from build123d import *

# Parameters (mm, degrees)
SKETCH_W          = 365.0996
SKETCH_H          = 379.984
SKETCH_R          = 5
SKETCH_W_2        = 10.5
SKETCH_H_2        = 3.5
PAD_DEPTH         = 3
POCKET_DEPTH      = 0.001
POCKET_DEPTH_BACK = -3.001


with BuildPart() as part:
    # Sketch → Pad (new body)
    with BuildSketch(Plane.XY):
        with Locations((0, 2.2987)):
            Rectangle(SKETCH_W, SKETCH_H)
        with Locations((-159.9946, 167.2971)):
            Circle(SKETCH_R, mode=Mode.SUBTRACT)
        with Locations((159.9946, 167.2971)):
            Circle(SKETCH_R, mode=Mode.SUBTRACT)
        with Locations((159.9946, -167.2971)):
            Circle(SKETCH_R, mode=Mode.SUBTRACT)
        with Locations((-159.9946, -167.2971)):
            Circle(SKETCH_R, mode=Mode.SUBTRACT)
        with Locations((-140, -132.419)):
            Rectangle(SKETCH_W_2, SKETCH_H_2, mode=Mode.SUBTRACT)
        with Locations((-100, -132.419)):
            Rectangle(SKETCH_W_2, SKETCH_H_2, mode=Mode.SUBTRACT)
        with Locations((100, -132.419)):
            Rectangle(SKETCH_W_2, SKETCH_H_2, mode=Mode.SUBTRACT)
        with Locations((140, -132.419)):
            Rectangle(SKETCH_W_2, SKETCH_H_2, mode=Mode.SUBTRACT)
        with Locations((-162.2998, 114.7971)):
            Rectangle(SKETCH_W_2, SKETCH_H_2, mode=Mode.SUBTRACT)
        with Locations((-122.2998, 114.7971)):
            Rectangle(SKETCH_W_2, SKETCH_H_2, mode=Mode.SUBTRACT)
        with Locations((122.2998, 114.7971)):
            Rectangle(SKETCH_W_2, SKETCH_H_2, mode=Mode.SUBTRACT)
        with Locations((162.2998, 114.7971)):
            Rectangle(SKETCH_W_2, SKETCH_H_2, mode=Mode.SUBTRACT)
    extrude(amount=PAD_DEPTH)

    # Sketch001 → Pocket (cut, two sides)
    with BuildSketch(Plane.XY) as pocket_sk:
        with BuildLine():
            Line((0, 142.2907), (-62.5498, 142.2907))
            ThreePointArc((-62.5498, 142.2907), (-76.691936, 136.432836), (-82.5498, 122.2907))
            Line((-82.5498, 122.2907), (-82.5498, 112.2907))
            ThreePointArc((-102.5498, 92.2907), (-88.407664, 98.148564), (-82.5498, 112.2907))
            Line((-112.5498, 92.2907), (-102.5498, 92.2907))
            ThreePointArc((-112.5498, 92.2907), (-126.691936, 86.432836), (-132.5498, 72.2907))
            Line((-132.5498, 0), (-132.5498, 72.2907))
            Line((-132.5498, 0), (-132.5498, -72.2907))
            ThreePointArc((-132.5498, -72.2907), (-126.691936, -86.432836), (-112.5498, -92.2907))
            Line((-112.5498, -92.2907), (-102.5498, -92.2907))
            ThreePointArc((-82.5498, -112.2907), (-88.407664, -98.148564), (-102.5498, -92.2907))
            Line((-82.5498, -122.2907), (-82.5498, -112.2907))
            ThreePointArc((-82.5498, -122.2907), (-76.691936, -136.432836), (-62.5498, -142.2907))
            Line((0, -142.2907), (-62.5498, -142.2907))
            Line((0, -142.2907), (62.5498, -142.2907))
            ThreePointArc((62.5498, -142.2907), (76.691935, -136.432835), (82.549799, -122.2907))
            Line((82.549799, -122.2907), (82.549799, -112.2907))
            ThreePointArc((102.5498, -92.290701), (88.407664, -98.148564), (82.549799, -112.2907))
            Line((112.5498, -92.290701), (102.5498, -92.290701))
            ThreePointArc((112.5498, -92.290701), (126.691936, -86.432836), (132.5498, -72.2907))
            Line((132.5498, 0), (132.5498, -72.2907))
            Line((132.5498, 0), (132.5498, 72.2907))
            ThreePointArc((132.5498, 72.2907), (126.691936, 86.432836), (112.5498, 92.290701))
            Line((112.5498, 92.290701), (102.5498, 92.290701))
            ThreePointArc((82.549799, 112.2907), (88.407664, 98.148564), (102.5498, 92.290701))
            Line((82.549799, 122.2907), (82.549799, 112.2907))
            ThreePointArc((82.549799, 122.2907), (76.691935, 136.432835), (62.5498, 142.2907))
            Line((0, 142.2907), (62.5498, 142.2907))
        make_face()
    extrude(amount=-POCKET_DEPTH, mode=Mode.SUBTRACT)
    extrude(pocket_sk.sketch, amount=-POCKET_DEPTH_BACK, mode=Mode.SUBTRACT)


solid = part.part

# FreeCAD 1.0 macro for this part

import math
import FreeCAD as App
import Part
import Sketcher
from FreeCAD import Vector

doc = App.newDocument("Part")
body = doc.addObject("PartDesign::Body", "Body")

sketch1 = body.newObject("Sketcher::SketchObject", "Sketch")
sketch1.AttachmentSupport = (doc.getObject("XY_Plane"), [""])
sketch1.MapMode = "FlatFace"
sketch1.addGeometry([
    Part.LineSegment(Vector(-182.5, 192.3, 0), Vector(-182.5, -187.7, 0)),
    Part.LineSegment(Vector(-182.5, -187.7, 0), Vector(182.5, -187.7, 0)),
    Part.LineSegment(Vector(182.5, -187.7, 0), Vector(182.5, 192.3, 0)),
    Part.LineSegment(Vector(182.5, 192.3, 0), Vector(-182.5, 192.3, 0)),
    Part.Circle(Vector(-160, -167.3, 0), Vector(0, 0, 1), 5),
    Part.LineSegment(Vector(-134.8, -134.2, 0), Vector(-145.2, -134.2, 0)),
    Part.LineSegment(Vector(-145.2, -134.2, 0), Vector(-145.2, -130.7, 0)),
    Part.LineSegment(Vector(-145.2, -130.7, 0), Vector(-134.8, -130.7, 0)),
    Part.LineSegment(Vector(-134.8, -130.7, 0), Vector(-134.8, -134.2, 0)),
    Part.LineSegment(Vector(-94.8, -134.2, 0), Vector(-105.2, -134.2, 0)),
    Part.LineSegment(Vector(-105.2, -134.2, 0), Vector(-105.2, -130.7, 0)),
    Part.LineSegment(Vector(-105.2, -130.7, 0), Vector(-94.8, -130.7, 0)),
    Part.LineSegment(Vector(-94.8, -130.7, 0), Vector(-94.8, -134.2, 0)),
    Part.LineSegment(Vector(105.2, -134.2, 0), Vector(94.8, -134.2, 0)),
    Part.LineSegment(Vector(94.8, -134.2, 0), Vector(94.8, -130.7, 0)),
    Part.LineSegment(Vector(94.8, -130.7, 0), Vector(105.2, -130.7, 0)),
    Part.LineSegment(Vector(105.2, -130.7, 0), Vector(105.2, -134.2, 0)),
    Part.Circle(Vector(160, -167.3, 0), Vector(0, 0, 1), 5),
    Part.LineSegment(Vector(145.2, -134.2, 0), Vector(134.8, -134.2, 0)),
    Part.LineSegment(Vector(134.8, -134.2, 0), Vector(134.8, -130.7, 0)),
    Part.LineSegment(Vector(134.8, -130.7, 0), Vector(145.2, -130.7, 0)),
    Part.LineSegment(Vector(145.2, -130.7, 0), Vector(145.2, -134.2, 0)),
    Part.LineSegment(Vector(-157, 113, 0), Vector(-167.5, 113, 0)),
    Part.LineSegment(Vector(-167.5, 113, 0), Vector(-167.5, 116.5, 0)),
    Part.LineSegment(Vector(-167.5, 116.5, 0), Vector(-157, 116.5, 0)),
    Part.LineSegment(Vector(-157, 116.5, 0), Vector(-157, 113, 0)),
    Part.LineSegment(Vector(-117, 113, 0), Vector(-127.5, 113, 0)),
    Part.LineSegment(Vector(-127.5, 113, 0), Vector(-127.5, 116.5, 0)),
    Part.LineSegment(Vector(-127.5, 116.5, 0), Vector(-117, 116.5, 0)),
    Part.LineSegment(Vector(-117, 116.5, 0), Vector(-117, 113, 0)),
    Part.Circle(Vector(-160, 167.3, 0), Vector(0, 0, 1), 5),
    Part.LineSegment(Vector(127.5, 113, 0), Vector(117, 113, 0)),
    Part.LineSegment(Vector(117, 113, 0), Vector(117, 116.5, 0)),
    Part.LineSegment(Vector(117, 116.5, 0), Vector(127.5, 116.5, 0)),
    Part.LineSegment(Vector(127.5, 116.5, 0), Vector(127.5, 113, 0)),
    Part.LineSegment(Vector(167.5, 113, 0), Vector(157, 113, 0)),
    Part.LineSegment(Vector(157, 113, 0), Vector(157, 116.5, 0)),
    Part.LineSegment(Vector(157, 116.5, 0), Vector(167.5, 116.5, 0)),
    Part.LineSegment(Vector(167.5, 116.5, 0), Vector(167.5, 113, 0)),
    Part.Circle(Vector(160, 167.3, 0), Vector(0, 0, 1), 5),
], False)
sketch1.addConstraint([
    Sketcher.Constraint("Coincident", 0, 2, 1, 1),
    Sketcher.Constraint("Coincident", 1, 2, 2, 1),
    Sketcher.Constraint("Coincident", 2, 2, 3, 1),
    Sketcher.Constraint("Coincident", 3, 2, 0, 1),
    Sketcher.Constraint("Coincident", 5, 2, 6, 1),
    Sketcher.Constraint("Coincident", 6, 2, 7, 1),
    Sketcher.Constraint("Coincident", 7, 2, 8, 1),
    Sketcher.Constraint("Coincident", 8, 2, 5, 1),
    Sketcher.Constraint("Coincident", 9, 2, 10, 1),
    Sketcher.Constraint("Coincident", 10, 2, 11, 1),
    Sketcher.Constraint("Coincident", 11, 2, 12, 1),
    Sketcher.Constraint("Coincident", 12, 2, 9, 1),
    Sketcher.Constraint("Coincident", 13, 2, 14, 1),
    Sketcher.Constraint("Coincident", 14, 2, 15, 1),
    Sketcher.Constraint("Coincident", 15, 2, 16, 1),
    Sketcher.Constraint("Coincident", 16, 2, 13, 1),
    Sketcher.Constraint("Coincident", 18, 2, 19, 1),
    Sketcher.Constraint("Coincident", 19, 2, 20, 1),
    Sketcher.Constraint("Coincident", 20, 2, 21, 1),
    Sketcher.Constraint("Coincident", 21, 2, 18, 1),
    Sketcher.Constraint("Coincident", 22, 2, 23, 1),
    Sketcher.Constraint("Coincident", 23, 2, 24, 1),
    Sketcher.Constraint("Coincident", 24, 2, 25, 1),
    Sketcher.Constraint("Coincident", 25, 2, 22, 1),
    Sketcher.Constraint("Coincident", 26, 2, 27, 1),
    Sketcher.Constraint("Coincident", 27, 2, 28, 1),
    Sketcher.Constraint("Coincident", 28, 2, 29, 1),
    Sketcher.Constraint("Coincident", 29, 2, 26, 1),
    Sketcher.Constraint("Coincident", 31, 2, 32, 1),
    Sketcher.Constraint("Coincident", 32, 2, 33, 1),
    Sketcher.Constraint("Coincident", 33, 2, 34, 1),
    Sketcher.Constraint("Coincident", 34, 2, 31, 1),
    Sketcher.Constraint("Coincident", 35, 2, 36, 1),
    Sketcher.Constraint("Coincident", 36, 2, 37, 1),
    Sketcher.Constraint("Coincident", 37, 2, 38, 1),
    Sketcher.Constraint("Coincident", 38, 2, 35, 1),
    Sketcher.Constraint("Vertical", 0),
    Sketcher.Constraint("Horizontal", 1),
    Sketcher.Constraint("Vertical", 2),
    Sketcher.Constraint("Horizontal", 3),
    Sketcher.Constraint("Horizontal", 5),
    Sketcher.Constraint("Vertical", 6),
    Sketcher.Constraint("Horizontal", 7),
    Sketcher.Constraint("Vertical", 8),
    Sketcher.Constraint("Horizontal", 9),
    Sketcher.Constraint("Vertical", 10),
    Sketcher.Constraint("Horizontal", 11),
    Sketcher.Constraint("Vertical", 12),
    Sketcher.Constraint("Horizontal", 13),
    Sketcher.Constraint("Vertical", 14),
    Sketcher.Constraint("Horizontal", 15),
    Sketcher.Constraint("Vertical", 16),
    Sketcher.Constraint("Horizontal", 18),
    Sketcher.Constraint("Vertical", 19),
    Sketcher.Constraint("Horizontal", 20),
    Sketcher.Constraint("Vertical", 21),
    Sketcher.Constraint("Horizontal", 22),
    Sketcher.Constraint("Vertical", 23),
    Sketcher.Constraint("Horizontal", 24),
    Sketcher.Constraint("Vertical", 25),
    Sketcher.Constraint("Horizontal", 26),
    Sketcher.Constraint("Vertical", 27),
    Sketcher.Constraint("Horizontal", 28),
    Sketcher.Constraint("Vertical", 29),
    Sketcher.Constraint("Horizontal", 31),
    Sketcher.Constraint("Vertical", 32),
    Sketcher.Constraint("Horizontal", 33),
    Sketcher.Constraint("Vertical", 34),
    Sketcher.Constraint("Horizontal", 35),
    Sketcher.Constraint("Vertical", 36),
    Sketcher.Constraint("Horizontal", 37),
    Sketcher.Constraint("Vertical", 38),
    Sketcher.Constraint("Equal", 4, 17),
    Sketcher.Constraint("Equal", 17, 30),
    Sketcher.Constraint("Equal", 30, 39),
    Sketcher.Constraint("Symmetric", 17, 3, 30, 3, -1, 1),
    Sketcher.Constraint("Symmetric", 4, 3, 39, 3, -1, 1),
    Sketcher.Constraint("Symmetric", 4, 3, 17, 3, -2),
    Sketcher.Constraint("Symmetric", 12, 2, 13, 2, -2),
    Sketcher.Constraint("Symmetric", 10, 2, 15, 2, -2),
    Sketcher.Constraint("Symmetric", 8, 2, 18, 2, -2),
    Sketcher.Constraint("Symmetric", 6, 2, 20, 2, -2),
    Sketcher.Constraint("Symmetric", 29, 2, 31, 2, -2),
    Sketcher.Constraint("Symmetric", 27, 2, 33, 2, -2),
    Sketcher.Constraint("Symmetric", 25, 2, 35, 2, -2),
    Sketcher.Constraint("Symmetric", 23, 2, 37, 2, -2),
    Sketcher.Constraint("Horizontal", 8, 2, 9, 2),
    Sketcher.Constraint("Horizontal", 7, 2, 10, 2),
    Sketcher.Constraint("Horizontal", 25, 2, 26, 2),
    Sketcher.Constraint("Horizontal", 24, 2, 27, 2),
    Sketcher.Constraint("Equal", 7, 9),
    Sketcher.Constraint("Equal", 20, 22),
    Sketcher.Constraint("Equal", 24, 26),
    Sketcher.Constraint("Equal", 21, 23),
    Sketcher.Constraint("Diameter", 4, 10.0),
    Sketcher.Constraint("DistanceX", 5, 2, 5, 1, 10.5),
    Sketcher.Constraint("DistanceY", 6, 1, 6, 2, 3.5),
    Sketcher.Constraint("DistanceX", 5, 2, 9, 2, 40.0),
    Sketcher.Constraint("DistanceX", 9, 2, 13, 2, 200.0),
    Sketcher.Constraint("DistanceX", 3, 2, 22, 2, 15.0),
    Sketcher.Constraint("DistanceX", 22, 2, 26, 2, 40.0),
    Sketcher.Constraint("DistanceX", 33, 2, 2, 2, 55.0),
    Sketcher.Constraint("DistanceY", 0, 2, 0, 1, 379.984),
    Sketcher.Constraint("DistanceY", 22, 2, 30, 3, 54.25),
    Sketcher.Constraint("DistanceX", 1, 1, 1, 2, 365.0996),
    Sketcher.Constraint("DistanceY", 5, 2, -1, 1, 134.169),
    Sketcher.Constraint("DistanceX", 4, 3, -1, 1, 159.9946),
    Sketcher.Constraint("DistanceY", 4, 3, -1, 1, 167.2971),
    Sketcher.Constraint("DistanceY", 0, 2, -1, 1, 187.6933),
])
pad1 = body.newObject("PartDesign::Pad", "Pad")
pad1.Profile = sketch1
pad1.Length = 3

sketch2 = body.newObject("Sketcher::SketchObject", "Sketch001")
sketch2.AttachmentSupport = (doc.getObject("XY_Plane"), [""])
sketch2.MapMode = "FlatFace"
sketch2.addGeometry([
    Part.ArcOfCircle(Part.Circle(Vector(-63, 122, 0), Vector(0, 0, 1), 20), math.radians(90), math.radians(180)),
    Part.LineSegment(Vector(-83, 122, 0), Vector(-83, 112, 0)),
    Part.ArcOfCircle(Part.Circle(Vector(-103, 112, 0), Vector(0, 0, 1), 20), math.radians(-90), math.radians(0)),
    Part.LineSegment(Vector(-103, 92, 0), Vector(-113, 92, 0)),
    Part.ArcOfCircle(Part.Circle(Vector(-113, 72, 0), Vector(0, 0, 1), 20), math.radians(90), math.radians(180)),
    Part.LineSegment(Vector(-133, 72, 0), Vector(-133, -72, 0)),
    Part.ArcOfCircle(Part.Circle(Vector(-113, -72, 0), Vector(0, 0, 1), 20), math.radians(180), math.radians(270)),
    Part.LineSegment(Vector(-113, -92, 0), Vector(-103, -92, 0)),
    Part.ArcOfCircle(Part.Circle(Vector(-103, -112, 0), Vector(0, 0, 1), 20), math.radians(0), math.radians(90)),
    Part.LineSegment(Vector(-83, -112, 0), Vector(-83, -122, 0)),
    Part.ArcOfCircle(Part.Circle(Vector(-63, -122, 0), Vector(0, 0, 1), 20), math.radians(180), math.radians(270)),
    Part.LineSegment(Vector(-63, -142, 0), Vector(63, -142, 0)),
    Part.ArcOfCircle(Part.Circle(Vector(63, -122, 0), Vector(0, 0, 1), 20), math.radians(-90), math.radians(0)),
    Part.LineSegment(Vector(83, -122, 0), Vector(83, -112, 0)),
    Part.ArcOfCircle(Part.Circle(Vector(103, -112, 0), Vector(0, 0, 1), 20), math.radians(90), math.radians(180)),
    Part.LineSegment(Vector(103, -92, 0), Vector(113, -92, 0)),
    Part.ArcOfCircle(Part.Circle(Vector(113, -72, 0), Vector(0, 0, 1), 20), math.radians(-90), math.radians(0)),
    Part.LineSegment(Vector(133, -72, 0), Vector(133, 72, 0)),
    Part.ArcOfCircle(Part.Circle(Vector(113, 72, 0), Vector(0, 0, 1), 20), math.radians(0), math.radians(90)),
    Part.LineSegment(Vector(113, 92, 0), Vector(103, 92, 0)),
    Part.ArcOfCircle(Part.Circle(Vector(103, 112, 0), Vector(0, 0, 1), 20), math.radians(180), math.radians(270)),
    Part.LineSegment(Vector(83, 112, 0), Vector(83, 122, 0)),
    Part.ArcOfCircle(Part.Circle(Vector(63, 122, 0), Vector(0, 0, 1), 20), math.radians(0), math.radians(90)),
    Part.LineSegment(Vector(63, 142, 0), Vector(-63, 142, 0)),
], False)
sketch2.addConstraint([
    Sketcher.Constraint("Tangent", 0, 2, 1, 1),
    Sketcher.Constraint("Tangent", 1, 2, 2, 2),
    Sketcher.Constraint("Tangent", 2, 1, 3, 1),
    Sketcher.Constraint("Tangent", 3, 2, 4, 1),
    Sketcher.Constraint("Tangent", 4, 2, 5, 1),
    Sketcher.Constraint("Tangent", 5, 2, 6, 1),
    Sketcher.Constraint("Tangent", 6, 2, 7, 1),
    Sketcher.Constraint("Tangent", 7, 2, 8, 2),
    Sketcher.Constraint("Tangent", 8, 1, 9, 1),
    Sketcher.Constraint("Tangent", 9, 2, 10, 1),
    Sketcher.Constraint("Tangent", 10, 2, 11, 1),
    Sketcher.Constraint("Tangent", 11, 2, 12, 1),
    Sketcher.Constraint("Tangent", 12, 2, 13, 1),
    Sketcher.Constraint("Tangent", 13, 2, 14, 2),
    Sketcher.Constraint("Tangent", 14, 1, 15, 1),
    Sketcher.Constraint("Tangent", 15, 2, 16, 1),
    Sketcher.Constraint("Tangent", 16, 2, 17, 1),
    Sketcher.Constraint("Tangent", 17, 2, 18, 1),
    Sketcher.Constraint("Tangent", 18, 2, 19, 1),
    Sketcher.Constraint("Tangent", 19, 2, 20, 2),
    Sketcher.Constraint("Tangent", 20, 1, 21, 1),
    Sketcher.Constraint("Tangent", 21, 2, 22, 1),
    Sketcher.Constraint("Tangent", 22, 2, 23, 1),
    Sketcher.Constraint("Tangent", 23, 2, 0, 1),
    Sketcher.Constraint("Vertical", 1),
    Sketcher.Constraint("Horizontal", 3),
    Sketcher.Constraint("Vertical", 5),
    Sketcher.Constraint("Horizontal", 7),
    Sketcher.Constraint("Vertical", 9),
    Sketcher.Constraint("Horizontal", 11),
    Sketcher.Constraint("Vertical", 13),
    Sketcher.Constraint("Horizontal", 15),
    Sketcher.Constraint("Vertical", 17),
    Sketcher.Constraint("Horizontal", 19),
    Sketcher.Constraint("Vertical", 21),
    Sketcher.Constraint("Horizontal", 23),
    Sketcher.Constraint("Equal", 0, 2),
    Sketcher.Constraint("Equal", 2, 4),
    Sketcher.Constraint("Equal", 4, 6),
    Sketcher.Constraint("Equal", 6, 8),
    Sketcher.Constraint("Equal", 8, 10),
    Sketcher.Constraint("Equal", 10, 12),
    Sketcher.Constraint("Equal", 12, 14),
    Sketcher.Constraint("Equal", 14, 16),
    Sketcher.Constraint("Equal", 16, 18),
    Sketcher.Constraint("Equal", 18, 20),
    Sketcher.Constraint("Equal", 20, 22),
    Sketcher.Constraint("Symmetric", 0, 3, 12, 3, -1, 1),
    Sketcher.Constraint("Symmetric", 4, 3, 16, 3, -1, 1),
    Sketcher.Constraint("Symmetric", 8, 3, 20, 3, -1, 1),
    Sketcher.Constraint("Symmetric", 8, 3, 14, 3, -2),
    Sketcher.Constraint("Equal", 19, 1),
    Sketcher.Constraint("Radius", 0, 19.999999),
    Sketcher.Constraint("DistanceX", 3, 2, 3, 1, 10.0),
    Sketcher.Constraint("DistanceX", 11, 1, 11, 2, 125.0996),
    Sketcher.Constraint("DistanceY", 5, 2, 5, 1, 144.5814),
])
pocket1 = body.newObject("PartDesign::Pocket", "Pocket")
pocket1.Profile = sketch2
pocket1.Type = "ThroughAll"
pocket1.Midplane = True

doc.recompute()
